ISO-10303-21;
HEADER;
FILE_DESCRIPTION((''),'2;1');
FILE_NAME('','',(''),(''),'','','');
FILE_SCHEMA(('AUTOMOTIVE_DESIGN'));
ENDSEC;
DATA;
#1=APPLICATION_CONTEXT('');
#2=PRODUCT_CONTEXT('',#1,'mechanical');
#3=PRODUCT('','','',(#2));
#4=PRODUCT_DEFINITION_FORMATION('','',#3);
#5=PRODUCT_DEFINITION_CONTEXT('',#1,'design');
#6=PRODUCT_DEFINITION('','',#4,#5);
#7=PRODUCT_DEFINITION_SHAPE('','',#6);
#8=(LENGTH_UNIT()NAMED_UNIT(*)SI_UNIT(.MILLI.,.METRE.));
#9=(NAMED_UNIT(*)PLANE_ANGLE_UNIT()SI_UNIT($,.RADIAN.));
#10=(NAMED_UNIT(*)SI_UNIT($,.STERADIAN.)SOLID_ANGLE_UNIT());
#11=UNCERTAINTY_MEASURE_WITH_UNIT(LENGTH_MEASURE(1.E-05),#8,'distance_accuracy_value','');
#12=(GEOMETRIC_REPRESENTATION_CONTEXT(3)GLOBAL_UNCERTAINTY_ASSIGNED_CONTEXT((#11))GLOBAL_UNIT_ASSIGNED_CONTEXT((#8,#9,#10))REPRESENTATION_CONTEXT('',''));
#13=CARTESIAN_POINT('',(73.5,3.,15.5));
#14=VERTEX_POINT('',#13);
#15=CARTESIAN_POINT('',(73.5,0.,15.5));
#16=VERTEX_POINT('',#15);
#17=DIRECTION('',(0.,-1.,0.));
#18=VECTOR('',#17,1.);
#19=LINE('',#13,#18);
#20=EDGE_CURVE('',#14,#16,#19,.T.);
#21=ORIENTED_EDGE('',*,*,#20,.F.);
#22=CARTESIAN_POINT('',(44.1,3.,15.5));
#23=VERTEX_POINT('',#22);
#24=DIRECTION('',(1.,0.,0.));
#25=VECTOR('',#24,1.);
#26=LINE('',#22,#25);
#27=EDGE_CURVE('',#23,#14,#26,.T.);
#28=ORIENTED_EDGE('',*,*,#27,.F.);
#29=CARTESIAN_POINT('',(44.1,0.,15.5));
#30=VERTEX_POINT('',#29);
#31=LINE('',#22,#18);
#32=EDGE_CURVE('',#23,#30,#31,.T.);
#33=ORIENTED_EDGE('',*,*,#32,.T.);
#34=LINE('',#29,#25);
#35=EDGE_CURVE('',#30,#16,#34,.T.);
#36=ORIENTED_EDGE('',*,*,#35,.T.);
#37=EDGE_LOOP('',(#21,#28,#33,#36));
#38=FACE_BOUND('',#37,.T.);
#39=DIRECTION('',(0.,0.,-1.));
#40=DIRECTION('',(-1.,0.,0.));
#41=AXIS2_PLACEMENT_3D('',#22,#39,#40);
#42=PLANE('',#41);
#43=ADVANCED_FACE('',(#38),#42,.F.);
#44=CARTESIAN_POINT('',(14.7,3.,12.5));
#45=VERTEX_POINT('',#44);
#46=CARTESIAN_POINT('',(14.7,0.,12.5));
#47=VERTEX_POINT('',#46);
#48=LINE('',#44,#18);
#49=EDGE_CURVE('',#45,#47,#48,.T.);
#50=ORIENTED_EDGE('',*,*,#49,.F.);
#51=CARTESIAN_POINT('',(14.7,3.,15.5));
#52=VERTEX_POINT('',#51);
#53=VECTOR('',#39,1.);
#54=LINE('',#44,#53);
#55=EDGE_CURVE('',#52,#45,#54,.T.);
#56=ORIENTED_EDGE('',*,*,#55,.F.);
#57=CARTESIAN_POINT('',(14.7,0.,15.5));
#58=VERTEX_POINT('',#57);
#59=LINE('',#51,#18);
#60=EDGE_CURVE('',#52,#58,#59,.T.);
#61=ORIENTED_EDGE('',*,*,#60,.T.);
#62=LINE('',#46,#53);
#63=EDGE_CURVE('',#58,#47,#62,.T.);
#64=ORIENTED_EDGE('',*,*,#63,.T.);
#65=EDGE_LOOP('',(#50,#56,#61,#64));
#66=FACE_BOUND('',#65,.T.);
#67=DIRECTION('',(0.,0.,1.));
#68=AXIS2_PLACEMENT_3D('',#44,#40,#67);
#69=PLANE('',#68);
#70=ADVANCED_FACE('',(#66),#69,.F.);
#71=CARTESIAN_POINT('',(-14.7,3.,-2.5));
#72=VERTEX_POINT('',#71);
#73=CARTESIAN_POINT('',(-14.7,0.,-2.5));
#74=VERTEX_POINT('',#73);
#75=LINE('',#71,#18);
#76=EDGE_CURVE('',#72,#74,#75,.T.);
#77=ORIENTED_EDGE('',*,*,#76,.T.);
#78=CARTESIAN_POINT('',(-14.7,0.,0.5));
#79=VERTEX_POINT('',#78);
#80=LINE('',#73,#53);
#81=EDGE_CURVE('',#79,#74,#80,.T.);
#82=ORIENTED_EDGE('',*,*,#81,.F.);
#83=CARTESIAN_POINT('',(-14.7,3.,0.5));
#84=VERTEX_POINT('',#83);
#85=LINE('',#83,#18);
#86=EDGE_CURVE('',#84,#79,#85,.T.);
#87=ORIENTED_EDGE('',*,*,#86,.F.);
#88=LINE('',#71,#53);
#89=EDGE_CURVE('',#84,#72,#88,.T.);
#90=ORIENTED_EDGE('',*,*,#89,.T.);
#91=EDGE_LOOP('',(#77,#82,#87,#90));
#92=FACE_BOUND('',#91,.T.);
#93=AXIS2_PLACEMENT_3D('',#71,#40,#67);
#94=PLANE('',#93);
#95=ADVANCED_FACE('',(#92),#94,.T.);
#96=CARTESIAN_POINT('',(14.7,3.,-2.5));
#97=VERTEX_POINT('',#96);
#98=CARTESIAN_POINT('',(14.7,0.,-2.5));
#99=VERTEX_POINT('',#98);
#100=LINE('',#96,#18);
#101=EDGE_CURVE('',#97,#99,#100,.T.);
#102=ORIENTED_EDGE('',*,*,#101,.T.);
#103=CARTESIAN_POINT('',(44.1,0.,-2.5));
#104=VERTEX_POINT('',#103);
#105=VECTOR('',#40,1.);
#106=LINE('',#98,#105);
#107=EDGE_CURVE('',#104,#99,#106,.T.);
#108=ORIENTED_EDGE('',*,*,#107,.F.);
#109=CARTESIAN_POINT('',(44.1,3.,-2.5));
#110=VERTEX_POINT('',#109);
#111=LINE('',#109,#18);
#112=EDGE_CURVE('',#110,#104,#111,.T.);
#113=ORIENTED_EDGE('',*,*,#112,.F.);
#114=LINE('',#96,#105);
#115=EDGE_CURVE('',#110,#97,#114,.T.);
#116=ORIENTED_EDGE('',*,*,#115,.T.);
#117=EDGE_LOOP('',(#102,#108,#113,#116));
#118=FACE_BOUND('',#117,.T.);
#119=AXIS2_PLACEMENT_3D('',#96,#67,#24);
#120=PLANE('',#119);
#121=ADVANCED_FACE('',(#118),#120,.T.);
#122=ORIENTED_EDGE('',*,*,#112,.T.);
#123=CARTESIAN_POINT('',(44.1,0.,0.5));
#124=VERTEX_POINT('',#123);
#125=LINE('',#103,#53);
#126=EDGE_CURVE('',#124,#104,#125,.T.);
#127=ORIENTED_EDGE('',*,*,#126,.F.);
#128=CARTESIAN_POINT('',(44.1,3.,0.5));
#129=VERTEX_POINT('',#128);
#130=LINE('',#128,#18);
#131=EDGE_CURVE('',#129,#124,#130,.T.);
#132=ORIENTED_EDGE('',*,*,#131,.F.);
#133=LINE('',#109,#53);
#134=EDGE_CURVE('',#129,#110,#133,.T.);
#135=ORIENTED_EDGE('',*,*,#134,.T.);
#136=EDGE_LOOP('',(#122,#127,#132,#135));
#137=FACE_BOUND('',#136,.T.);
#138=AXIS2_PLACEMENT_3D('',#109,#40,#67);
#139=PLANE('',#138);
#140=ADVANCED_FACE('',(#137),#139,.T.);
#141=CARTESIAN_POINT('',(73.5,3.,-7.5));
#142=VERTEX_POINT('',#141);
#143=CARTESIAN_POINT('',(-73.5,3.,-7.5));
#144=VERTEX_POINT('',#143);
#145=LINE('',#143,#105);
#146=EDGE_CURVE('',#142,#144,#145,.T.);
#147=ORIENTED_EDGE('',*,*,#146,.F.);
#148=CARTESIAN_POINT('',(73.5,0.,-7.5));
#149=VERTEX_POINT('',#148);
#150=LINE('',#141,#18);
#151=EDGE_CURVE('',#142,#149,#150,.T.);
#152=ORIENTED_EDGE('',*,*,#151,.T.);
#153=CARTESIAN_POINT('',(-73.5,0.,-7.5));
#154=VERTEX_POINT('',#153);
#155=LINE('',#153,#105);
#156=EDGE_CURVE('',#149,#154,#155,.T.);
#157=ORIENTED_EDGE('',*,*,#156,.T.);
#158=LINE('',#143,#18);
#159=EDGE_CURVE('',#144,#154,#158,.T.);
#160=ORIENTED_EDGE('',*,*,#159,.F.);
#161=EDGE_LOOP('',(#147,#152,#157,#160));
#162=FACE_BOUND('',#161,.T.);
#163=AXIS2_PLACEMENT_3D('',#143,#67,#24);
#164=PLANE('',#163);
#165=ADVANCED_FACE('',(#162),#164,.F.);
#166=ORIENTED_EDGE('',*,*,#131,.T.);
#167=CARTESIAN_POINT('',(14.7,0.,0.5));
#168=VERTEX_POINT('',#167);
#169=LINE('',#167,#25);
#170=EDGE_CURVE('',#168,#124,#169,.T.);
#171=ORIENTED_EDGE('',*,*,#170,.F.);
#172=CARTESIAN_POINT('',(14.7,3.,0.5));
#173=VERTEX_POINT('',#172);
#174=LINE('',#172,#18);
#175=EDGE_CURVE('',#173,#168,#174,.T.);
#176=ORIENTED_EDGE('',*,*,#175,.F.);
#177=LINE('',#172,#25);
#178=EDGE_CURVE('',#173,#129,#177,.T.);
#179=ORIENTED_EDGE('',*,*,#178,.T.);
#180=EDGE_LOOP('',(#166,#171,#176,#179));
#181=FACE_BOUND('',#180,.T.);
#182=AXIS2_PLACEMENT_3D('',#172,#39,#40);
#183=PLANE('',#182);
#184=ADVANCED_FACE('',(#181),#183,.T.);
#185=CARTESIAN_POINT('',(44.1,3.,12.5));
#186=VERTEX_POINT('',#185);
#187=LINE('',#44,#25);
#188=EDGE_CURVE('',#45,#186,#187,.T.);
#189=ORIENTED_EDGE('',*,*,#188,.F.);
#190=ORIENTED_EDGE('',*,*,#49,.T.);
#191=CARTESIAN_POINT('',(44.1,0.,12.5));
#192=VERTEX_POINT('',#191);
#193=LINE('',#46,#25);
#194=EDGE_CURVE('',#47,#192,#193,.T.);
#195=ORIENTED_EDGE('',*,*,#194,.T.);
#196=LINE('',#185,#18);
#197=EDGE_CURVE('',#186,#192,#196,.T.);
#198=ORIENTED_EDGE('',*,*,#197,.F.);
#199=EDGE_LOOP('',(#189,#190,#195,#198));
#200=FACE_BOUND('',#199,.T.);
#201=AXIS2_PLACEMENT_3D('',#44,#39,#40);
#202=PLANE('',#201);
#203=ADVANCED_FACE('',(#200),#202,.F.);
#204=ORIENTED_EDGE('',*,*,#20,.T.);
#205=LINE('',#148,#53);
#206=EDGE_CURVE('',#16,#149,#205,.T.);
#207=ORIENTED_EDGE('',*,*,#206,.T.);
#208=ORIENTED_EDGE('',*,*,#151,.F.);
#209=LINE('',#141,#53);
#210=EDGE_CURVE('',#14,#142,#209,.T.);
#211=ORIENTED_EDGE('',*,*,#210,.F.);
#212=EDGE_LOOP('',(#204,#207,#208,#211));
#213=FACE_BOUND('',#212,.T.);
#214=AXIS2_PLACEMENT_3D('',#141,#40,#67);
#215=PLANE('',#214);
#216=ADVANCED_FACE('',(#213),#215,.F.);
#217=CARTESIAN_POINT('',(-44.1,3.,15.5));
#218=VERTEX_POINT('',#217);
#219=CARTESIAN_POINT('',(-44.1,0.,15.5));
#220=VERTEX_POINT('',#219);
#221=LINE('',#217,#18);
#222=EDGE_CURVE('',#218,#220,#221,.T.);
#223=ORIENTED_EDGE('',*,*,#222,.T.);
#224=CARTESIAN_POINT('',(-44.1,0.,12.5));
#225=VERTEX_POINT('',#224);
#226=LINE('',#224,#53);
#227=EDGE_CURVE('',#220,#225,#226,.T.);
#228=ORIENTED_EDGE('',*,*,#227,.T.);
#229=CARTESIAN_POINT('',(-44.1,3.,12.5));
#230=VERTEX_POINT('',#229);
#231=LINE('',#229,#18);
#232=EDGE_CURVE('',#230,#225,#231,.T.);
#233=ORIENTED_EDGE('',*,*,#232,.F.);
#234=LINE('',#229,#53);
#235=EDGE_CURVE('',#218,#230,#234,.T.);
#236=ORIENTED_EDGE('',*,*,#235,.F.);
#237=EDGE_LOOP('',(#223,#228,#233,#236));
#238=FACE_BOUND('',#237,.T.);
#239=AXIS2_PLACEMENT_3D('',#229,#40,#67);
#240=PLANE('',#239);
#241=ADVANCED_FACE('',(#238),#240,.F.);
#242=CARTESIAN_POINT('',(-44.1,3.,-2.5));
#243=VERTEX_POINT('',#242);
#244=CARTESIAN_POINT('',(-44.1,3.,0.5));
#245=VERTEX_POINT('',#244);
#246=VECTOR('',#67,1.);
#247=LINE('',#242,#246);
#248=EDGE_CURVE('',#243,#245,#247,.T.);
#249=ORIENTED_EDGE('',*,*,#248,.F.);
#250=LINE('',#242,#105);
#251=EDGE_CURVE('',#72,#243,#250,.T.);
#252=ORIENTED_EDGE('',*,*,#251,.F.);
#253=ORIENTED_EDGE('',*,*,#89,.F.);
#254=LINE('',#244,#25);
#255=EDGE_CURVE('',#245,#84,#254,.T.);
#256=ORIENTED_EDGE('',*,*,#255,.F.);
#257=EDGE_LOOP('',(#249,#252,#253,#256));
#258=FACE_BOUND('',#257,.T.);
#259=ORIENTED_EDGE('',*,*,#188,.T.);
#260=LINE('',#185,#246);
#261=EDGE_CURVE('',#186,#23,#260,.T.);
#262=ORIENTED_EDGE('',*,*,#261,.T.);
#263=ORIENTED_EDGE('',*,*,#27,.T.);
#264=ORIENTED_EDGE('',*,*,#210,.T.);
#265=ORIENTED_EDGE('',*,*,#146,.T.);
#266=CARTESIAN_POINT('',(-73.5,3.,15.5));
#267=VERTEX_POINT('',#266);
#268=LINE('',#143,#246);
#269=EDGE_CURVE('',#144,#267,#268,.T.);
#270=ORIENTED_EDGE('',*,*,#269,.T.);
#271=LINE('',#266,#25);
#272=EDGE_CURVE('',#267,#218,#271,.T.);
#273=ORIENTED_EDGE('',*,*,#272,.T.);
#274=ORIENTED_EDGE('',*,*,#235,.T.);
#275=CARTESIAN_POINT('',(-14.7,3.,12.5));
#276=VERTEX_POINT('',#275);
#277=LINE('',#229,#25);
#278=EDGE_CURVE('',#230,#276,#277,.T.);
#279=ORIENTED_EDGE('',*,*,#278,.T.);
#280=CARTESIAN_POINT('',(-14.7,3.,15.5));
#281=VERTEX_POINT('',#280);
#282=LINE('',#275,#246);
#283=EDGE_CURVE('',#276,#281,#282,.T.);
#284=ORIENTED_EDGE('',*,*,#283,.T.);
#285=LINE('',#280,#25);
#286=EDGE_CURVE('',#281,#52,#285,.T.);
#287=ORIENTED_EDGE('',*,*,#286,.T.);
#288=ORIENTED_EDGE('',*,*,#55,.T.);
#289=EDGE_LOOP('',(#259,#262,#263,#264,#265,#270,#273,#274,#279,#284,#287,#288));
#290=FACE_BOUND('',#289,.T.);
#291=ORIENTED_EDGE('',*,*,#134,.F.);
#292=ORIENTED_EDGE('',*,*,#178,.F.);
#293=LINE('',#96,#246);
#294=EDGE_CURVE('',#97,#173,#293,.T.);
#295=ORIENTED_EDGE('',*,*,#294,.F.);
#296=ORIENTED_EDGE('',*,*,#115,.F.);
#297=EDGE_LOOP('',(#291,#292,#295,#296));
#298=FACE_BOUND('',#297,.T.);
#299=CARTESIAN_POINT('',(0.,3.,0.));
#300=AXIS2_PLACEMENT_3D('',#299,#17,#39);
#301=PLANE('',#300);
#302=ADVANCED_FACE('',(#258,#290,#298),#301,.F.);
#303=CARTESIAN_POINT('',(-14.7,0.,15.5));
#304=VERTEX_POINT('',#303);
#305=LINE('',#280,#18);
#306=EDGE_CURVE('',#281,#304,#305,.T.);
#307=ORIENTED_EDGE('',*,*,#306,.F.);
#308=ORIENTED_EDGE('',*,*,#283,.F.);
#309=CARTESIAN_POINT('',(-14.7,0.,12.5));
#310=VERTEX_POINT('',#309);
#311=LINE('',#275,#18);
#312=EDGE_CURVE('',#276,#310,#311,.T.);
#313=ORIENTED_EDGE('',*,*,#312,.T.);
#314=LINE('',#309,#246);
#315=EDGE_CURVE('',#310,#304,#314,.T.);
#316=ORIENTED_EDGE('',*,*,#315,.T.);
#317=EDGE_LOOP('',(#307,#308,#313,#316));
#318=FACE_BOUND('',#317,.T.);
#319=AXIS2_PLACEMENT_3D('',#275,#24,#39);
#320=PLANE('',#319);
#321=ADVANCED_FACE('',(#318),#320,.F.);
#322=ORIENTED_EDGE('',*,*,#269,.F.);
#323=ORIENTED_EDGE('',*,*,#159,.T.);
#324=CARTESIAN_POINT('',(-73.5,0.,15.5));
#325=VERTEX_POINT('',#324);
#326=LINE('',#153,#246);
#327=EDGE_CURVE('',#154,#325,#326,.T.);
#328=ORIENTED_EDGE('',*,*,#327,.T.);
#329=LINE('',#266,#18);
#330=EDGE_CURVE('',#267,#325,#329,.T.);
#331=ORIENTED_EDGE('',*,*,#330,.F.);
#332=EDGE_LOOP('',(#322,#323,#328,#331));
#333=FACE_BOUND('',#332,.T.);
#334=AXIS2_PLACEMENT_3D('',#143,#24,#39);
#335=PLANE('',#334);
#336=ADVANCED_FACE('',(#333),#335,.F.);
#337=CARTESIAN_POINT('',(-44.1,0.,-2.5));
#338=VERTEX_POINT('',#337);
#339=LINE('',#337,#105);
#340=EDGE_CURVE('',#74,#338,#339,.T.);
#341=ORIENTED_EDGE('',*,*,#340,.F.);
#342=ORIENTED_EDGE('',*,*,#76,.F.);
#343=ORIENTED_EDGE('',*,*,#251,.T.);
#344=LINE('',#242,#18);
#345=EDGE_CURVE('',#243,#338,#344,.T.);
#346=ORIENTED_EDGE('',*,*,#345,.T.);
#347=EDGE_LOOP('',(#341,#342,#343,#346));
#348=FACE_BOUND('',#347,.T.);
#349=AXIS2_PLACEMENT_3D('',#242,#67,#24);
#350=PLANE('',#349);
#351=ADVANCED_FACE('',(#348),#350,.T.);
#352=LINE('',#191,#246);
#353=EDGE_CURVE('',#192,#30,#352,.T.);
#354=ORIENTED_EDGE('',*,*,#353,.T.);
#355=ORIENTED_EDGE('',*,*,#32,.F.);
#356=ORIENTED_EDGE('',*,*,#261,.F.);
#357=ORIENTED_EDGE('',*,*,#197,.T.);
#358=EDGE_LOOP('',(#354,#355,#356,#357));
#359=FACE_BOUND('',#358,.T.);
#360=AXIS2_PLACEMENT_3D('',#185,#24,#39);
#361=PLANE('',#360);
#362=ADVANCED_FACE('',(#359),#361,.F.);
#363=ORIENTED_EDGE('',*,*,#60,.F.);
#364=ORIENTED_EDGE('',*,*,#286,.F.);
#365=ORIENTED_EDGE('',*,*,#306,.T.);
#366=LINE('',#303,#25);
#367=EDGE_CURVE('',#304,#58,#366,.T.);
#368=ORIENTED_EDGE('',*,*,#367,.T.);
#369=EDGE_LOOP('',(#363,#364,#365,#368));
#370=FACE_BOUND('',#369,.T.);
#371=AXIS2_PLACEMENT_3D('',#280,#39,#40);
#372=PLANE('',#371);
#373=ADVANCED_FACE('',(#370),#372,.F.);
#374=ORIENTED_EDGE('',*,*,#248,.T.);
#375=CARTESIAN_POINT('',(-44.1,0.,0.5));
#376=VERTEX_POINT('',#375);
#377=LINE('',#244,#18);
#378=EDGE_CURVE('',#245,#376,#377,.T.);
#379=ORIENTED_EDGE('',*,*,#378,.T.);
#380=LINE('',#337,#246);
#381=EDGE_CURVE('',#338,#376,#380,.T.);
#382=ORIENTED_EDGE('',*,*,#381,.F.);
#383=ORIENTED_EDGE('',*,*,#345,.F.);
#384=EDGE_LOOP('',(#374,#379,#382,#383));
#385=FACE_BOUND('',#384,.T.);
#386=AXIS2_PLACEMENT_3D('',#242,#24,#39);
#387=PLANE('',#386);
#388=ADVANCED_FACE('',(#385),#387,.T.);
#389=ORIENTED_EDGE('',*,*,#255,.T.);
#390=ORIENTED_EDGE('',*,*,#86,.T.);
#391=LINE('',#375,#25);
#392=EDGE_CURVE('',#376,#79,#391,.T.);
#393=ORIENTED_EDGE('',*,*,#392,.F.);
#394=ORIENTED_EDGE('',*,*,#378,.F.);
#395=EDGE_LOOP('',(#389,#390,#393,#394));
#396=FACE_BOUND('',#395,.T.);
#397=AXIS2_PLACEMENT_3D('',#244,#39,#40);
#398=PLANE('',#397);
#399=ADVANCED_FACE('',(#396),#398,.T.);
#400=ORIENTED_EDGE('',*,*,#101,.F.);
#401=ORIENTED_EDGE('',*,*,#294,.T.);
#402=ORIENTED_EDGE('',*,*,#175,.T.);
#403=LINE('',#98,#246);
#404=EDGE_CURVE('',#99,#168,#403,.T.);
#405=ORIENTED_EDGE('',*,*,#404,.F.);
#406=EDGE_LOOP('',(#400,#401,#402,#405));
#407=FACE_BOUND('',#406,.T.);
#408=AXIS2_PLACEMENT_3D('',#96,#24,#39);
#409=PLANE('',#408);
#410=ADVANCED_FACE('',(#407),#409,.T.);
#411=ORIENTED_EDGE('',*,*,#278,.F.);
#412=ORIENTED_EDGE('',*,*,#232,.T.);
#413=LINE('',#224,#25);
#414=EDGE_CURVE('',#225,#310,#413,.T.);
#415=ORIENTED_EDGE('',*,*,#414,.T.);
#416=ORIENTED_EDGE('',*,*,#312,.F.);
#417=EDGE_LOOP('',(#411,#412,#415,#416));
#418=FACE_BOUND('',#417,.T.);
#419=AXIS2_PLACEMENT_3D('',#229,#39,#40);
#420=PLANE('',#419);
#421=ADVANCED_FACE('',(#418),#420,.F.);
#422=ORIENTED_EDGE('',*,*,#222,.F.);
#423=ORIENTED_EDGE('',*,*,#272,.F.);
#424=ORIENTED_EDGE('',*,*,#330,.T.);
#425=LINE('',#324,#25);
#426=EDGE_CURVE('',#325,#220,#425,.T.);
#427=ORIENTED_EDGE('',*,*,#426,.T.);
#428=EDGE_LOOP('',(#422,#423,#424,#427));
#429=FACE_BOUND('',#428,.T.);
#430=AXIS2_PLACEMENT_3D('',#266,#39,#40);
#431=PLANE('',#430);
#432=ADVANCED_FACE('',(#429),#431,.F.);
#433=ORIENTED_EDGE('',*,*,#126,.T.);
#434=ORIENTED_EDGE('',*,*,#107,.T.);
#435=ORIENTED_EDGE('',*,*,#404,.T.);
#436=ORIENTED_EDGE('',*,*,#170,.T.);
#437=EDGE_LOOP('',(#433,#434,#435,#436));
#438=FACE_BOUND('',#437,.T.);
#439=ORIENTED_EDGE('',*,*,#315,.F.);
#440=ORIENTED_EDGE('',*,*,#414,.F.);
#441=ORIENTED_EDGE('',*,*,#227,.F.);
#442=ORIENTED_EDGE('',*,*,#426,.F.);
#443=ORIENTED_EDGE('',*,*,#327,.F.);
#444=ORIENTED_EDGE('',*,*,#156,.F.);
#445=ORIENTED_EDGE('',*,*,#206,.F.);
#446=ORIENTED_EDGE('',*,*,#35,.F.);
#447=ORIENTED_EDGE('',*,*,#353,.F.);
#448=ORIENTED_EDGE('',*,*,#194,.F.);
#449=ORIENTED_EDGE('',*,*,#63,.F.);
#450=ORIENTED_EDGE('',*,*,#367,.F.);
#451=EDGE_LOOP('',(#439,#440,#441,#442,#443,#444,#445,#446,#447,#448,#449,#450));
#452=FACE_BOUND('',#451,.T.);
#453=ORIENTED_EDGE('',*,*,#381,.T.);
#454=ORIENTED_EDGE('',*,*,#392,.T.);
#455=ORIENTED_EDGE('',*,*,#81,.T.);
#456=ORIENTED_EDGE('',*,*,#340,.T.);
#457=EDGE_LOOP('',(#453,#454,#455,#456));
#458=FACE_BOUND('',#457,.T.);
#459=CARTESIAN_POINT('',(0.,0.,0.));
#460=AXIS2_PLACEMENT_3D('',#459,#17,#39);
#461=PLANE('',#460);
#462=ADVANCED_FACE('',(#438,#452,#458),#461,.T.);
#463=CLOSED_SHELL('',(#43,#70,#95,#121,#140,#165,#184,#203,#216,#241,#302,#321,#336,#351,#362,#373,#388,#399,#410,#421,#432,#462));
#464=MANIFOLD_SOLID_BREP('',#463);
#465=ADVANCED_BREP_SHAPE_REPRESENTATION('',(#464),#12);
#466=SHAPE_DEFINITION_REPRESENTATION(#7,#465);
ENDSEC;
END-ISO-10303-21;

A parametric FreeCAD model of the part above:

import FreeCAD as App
import Part
import Sketcher
from FreeCAD import Vector

doc = App.newDocument("Part")
body = doc.addObject("PartDesign::Body", "Body")

# Sketch on XZ plane
sketch1 = body.newObject("Sketcher::SketchObject", "Sketch")
sketch1.AttachmentSupport = (doc.getObject("XZ_Plane"), [""])
sketch1.MapMode = "FlatFace"
sketch1.addGeometry([
    Part.LineSegment(Vector(73.5, -7.5, 0), Vector(-73.5, -7.5, 0)),  # 0
    Part.LineSegment(Vector(-73.5, -7.5, 0), Vector(-73.5, 15.5, 0)),  # 1
    Part.LineSegment(Vector(-73.5, 15.5, 0), Vector(-44.1, 15.5, 0)),  # 2
    Part.LineSegment(Vector(-44.1, 15.5, 0), Vector(-44.1, 12.5, 0)),  # 3
    Part.LineSegment(Vector(-44.1, 12.5, 0), Vector(-14.7, 12.5, 0)),  # 4
    Part.LineSegment(Vector(-14.7, 12.5, 0), Vector(-14.7, 15.5, 0)),  # 5
    Part.LineSegment(Vector(-14.7, 15.5, 0), Vector(14.7, 15.5, 0)),  # 6
    Part.LineSegment(Vector(14.7, 15.5, 0), Vector(14.7, 12.5, 0)),  # 7
    Part.LineSegment(Vector(14.7, 12.5, 0), Vector(44.1, 12.5, 0)),  # 8
    Part.LineSegment(Vector(44.1, 12.5, 0), Vector(44.1, 15.5, 0)),  # 9
    Part.LineSegment(Vector(44.1, 15.5, 0), Vector(73.5, 15.5, 0)),  # 10
    Part.LineSegment(Vector(73.5, 15.5, 0), Vector(73.5, -7.5, 0)),  # 11
    Part.LineSegment(Vector(14.7, 0.5, 0), Vector(14.7, -2.5, 0)),  # 12
    Part.LineSegment(Vector(14.7, -2.5, 0), Vector(44.1, -2.5, 0)),  # 13
    Part.LineSegment(Vector(44.1, -2.5, 0), Vector(44.1, 0.5, 0)),  # 14
    Part.LineSegment(Vector(44.1, 0.5, 0), Vector(14.7, 0.5, 0)),  # 15
    Part.LineSegment(Vector(-44.1, 0.5, 0), Vector(-44.1, -2.5, 0)),  # 16
    Part.LineSegment(Vector(-44.1, -2.5, 0), Vector(-14.7, -2.5, 0)),  # 17
    Part.LineSegment(Vector(-14.7, -2.5, 0), Vector(-14.7, 0.5, 0)),  # 18
    Part.LineSegment(Vector(-14.7, 0.5, 0), Vector(-44.1, 0.5, 0)),  # 19
], False)
sketch1.addConstraint([
    Sketcher.Constraint("Coincident", 0, 2, 1, 1),
    Sketcher.Constraint("Coincident", 1, 2, 2, 1),
    Sketcher.Constraint("Coincident", 2, 2, 3, 1),
    Sketcher.Constraint("Coincident", 3, 2, 4, 1),
    Sketcher.Constraint("Coincident", 4, 2, 5, 1),
    Sketcher.Constraint("Coincident", 5, 2, 6, 1),
    Sketcher.Constraint("Coincident", 6, 2, 7, 1),
    Sketcher.Constraint("Coincident", 7, 2, 8, 1),
    Sketcher.Constraint("Coincident", 8, 2, 9, 1),
    Sketcher.Constraint("Coincident", 9, 2, 10, 1),
    Sketcher.Constraint("Coincident", 10, 2, 11, 1),
    Sketcher.Constraint("Coincident", 11, 2, 0, 1),
    Sketcher.Constraint("Coincident", 12, 2, 13, 1),
    Sketcher.Constraint("Coincident", 13, 2, 14, 1),
    Sketcher.Constraint("Coincident", 14, 2, 15, 1),
    Sketcher.Constraint("Coincident", 15, 2, 12, 1),
    Sketcher.Constraint("Coincident", 16, 2, 17, 1),
    Sketcher.Constraint("Coincident", 17, 2, 18, 1),
    Sketcher.Constraint("Coincident", 18, 2, 19, 1),
    Sketcher.Constraint("Coincident", 19, 2, 16, 1),
    Sketcher.Constraint("Horizontal", 0),
    Sketcher.Constraint("Vertical", 1),
    Sketcher.Constraint("Horizontal", 2),
    Sketcher.Constraint("Vertical", 3),
    Sketcher.Constraint("Horizontal", 4),
    Sketcher.Constraint("Vertical", 5),
    Sketcher.Constraint("Horizontal", 6),
    Sketcher.Constraint("Vertical", 7),
    Sketcher.Constraint("Horizontal", 8),
    Sketcher.Constraint("Vertical", 9),
    Sketcher.Constraint("Horizontal", 10),
    Sketcher.Constraint("Vertical", 11),
    Sketcher.Constraint("Vertical", 12),
    Sketcher.Constraint("Horizontal", 13),
    Sketcher.Constraint("Vertical", 14),
    Sketcher.Constraint("Horizontal", 15),
    Sketcher.Constraint("Vertical", 16),
    Sketcher.Constraint("Horizontal", 17),
    Sketcher.Constraint("Vertical", 18),
    Sketcher.Constraint("Horizontal", 19),
    Sketcher.Constraint("Symmetric", 4, 2, 7, 2, -2),
    Sketcher.Constraint("Symmetric", 2, 2, 9, 2, -2),
    Sketcher.Constraint("Symmetric", 13, 2, 16, 2, -2),
    Sketcher.Constraint("Symmetric", 15, 2, 18, 2, -2),
    Sketcher.Constraint("Horizontal", 2, 2, 5, 2),
    Sketcher.Constraint("Vertical", 7, 2, 12, 2),
    Sketcher.Constraint("Vertical", 9, 2, 13, 2),
    Sketcher.Constraint("Equal", 2, 4),
    Sketcher.Constraint("Equal", 4, 6),
    Sketcher.Constraint("Equal", 8, 10),
    Sketcher.Constraint("Equal", 9, 12),
    Sketcher.Constraint("DistanceX", 0, 2, 0, 1, 147.0),
    Sketcher.Constraint("DistanceY", 1, 1, 1, 2, 23.0),
    Sketcher.Constraint("DistanceY", 3, 2, 3, 1, 3.0),
    Sketcher.Constraint("DistanceY", 12, 2, 7, 2, 15.0),
    Sketcher.Constraint("DistanceY", 0, 2, -1, 1, 7.5),
])
pad1 = body.newObject("PartDesign::Pad", "Pad")
pad1.Profile = sketch1
pad1.Length = 3
pad1.Reversed = True

doc.recompute()
